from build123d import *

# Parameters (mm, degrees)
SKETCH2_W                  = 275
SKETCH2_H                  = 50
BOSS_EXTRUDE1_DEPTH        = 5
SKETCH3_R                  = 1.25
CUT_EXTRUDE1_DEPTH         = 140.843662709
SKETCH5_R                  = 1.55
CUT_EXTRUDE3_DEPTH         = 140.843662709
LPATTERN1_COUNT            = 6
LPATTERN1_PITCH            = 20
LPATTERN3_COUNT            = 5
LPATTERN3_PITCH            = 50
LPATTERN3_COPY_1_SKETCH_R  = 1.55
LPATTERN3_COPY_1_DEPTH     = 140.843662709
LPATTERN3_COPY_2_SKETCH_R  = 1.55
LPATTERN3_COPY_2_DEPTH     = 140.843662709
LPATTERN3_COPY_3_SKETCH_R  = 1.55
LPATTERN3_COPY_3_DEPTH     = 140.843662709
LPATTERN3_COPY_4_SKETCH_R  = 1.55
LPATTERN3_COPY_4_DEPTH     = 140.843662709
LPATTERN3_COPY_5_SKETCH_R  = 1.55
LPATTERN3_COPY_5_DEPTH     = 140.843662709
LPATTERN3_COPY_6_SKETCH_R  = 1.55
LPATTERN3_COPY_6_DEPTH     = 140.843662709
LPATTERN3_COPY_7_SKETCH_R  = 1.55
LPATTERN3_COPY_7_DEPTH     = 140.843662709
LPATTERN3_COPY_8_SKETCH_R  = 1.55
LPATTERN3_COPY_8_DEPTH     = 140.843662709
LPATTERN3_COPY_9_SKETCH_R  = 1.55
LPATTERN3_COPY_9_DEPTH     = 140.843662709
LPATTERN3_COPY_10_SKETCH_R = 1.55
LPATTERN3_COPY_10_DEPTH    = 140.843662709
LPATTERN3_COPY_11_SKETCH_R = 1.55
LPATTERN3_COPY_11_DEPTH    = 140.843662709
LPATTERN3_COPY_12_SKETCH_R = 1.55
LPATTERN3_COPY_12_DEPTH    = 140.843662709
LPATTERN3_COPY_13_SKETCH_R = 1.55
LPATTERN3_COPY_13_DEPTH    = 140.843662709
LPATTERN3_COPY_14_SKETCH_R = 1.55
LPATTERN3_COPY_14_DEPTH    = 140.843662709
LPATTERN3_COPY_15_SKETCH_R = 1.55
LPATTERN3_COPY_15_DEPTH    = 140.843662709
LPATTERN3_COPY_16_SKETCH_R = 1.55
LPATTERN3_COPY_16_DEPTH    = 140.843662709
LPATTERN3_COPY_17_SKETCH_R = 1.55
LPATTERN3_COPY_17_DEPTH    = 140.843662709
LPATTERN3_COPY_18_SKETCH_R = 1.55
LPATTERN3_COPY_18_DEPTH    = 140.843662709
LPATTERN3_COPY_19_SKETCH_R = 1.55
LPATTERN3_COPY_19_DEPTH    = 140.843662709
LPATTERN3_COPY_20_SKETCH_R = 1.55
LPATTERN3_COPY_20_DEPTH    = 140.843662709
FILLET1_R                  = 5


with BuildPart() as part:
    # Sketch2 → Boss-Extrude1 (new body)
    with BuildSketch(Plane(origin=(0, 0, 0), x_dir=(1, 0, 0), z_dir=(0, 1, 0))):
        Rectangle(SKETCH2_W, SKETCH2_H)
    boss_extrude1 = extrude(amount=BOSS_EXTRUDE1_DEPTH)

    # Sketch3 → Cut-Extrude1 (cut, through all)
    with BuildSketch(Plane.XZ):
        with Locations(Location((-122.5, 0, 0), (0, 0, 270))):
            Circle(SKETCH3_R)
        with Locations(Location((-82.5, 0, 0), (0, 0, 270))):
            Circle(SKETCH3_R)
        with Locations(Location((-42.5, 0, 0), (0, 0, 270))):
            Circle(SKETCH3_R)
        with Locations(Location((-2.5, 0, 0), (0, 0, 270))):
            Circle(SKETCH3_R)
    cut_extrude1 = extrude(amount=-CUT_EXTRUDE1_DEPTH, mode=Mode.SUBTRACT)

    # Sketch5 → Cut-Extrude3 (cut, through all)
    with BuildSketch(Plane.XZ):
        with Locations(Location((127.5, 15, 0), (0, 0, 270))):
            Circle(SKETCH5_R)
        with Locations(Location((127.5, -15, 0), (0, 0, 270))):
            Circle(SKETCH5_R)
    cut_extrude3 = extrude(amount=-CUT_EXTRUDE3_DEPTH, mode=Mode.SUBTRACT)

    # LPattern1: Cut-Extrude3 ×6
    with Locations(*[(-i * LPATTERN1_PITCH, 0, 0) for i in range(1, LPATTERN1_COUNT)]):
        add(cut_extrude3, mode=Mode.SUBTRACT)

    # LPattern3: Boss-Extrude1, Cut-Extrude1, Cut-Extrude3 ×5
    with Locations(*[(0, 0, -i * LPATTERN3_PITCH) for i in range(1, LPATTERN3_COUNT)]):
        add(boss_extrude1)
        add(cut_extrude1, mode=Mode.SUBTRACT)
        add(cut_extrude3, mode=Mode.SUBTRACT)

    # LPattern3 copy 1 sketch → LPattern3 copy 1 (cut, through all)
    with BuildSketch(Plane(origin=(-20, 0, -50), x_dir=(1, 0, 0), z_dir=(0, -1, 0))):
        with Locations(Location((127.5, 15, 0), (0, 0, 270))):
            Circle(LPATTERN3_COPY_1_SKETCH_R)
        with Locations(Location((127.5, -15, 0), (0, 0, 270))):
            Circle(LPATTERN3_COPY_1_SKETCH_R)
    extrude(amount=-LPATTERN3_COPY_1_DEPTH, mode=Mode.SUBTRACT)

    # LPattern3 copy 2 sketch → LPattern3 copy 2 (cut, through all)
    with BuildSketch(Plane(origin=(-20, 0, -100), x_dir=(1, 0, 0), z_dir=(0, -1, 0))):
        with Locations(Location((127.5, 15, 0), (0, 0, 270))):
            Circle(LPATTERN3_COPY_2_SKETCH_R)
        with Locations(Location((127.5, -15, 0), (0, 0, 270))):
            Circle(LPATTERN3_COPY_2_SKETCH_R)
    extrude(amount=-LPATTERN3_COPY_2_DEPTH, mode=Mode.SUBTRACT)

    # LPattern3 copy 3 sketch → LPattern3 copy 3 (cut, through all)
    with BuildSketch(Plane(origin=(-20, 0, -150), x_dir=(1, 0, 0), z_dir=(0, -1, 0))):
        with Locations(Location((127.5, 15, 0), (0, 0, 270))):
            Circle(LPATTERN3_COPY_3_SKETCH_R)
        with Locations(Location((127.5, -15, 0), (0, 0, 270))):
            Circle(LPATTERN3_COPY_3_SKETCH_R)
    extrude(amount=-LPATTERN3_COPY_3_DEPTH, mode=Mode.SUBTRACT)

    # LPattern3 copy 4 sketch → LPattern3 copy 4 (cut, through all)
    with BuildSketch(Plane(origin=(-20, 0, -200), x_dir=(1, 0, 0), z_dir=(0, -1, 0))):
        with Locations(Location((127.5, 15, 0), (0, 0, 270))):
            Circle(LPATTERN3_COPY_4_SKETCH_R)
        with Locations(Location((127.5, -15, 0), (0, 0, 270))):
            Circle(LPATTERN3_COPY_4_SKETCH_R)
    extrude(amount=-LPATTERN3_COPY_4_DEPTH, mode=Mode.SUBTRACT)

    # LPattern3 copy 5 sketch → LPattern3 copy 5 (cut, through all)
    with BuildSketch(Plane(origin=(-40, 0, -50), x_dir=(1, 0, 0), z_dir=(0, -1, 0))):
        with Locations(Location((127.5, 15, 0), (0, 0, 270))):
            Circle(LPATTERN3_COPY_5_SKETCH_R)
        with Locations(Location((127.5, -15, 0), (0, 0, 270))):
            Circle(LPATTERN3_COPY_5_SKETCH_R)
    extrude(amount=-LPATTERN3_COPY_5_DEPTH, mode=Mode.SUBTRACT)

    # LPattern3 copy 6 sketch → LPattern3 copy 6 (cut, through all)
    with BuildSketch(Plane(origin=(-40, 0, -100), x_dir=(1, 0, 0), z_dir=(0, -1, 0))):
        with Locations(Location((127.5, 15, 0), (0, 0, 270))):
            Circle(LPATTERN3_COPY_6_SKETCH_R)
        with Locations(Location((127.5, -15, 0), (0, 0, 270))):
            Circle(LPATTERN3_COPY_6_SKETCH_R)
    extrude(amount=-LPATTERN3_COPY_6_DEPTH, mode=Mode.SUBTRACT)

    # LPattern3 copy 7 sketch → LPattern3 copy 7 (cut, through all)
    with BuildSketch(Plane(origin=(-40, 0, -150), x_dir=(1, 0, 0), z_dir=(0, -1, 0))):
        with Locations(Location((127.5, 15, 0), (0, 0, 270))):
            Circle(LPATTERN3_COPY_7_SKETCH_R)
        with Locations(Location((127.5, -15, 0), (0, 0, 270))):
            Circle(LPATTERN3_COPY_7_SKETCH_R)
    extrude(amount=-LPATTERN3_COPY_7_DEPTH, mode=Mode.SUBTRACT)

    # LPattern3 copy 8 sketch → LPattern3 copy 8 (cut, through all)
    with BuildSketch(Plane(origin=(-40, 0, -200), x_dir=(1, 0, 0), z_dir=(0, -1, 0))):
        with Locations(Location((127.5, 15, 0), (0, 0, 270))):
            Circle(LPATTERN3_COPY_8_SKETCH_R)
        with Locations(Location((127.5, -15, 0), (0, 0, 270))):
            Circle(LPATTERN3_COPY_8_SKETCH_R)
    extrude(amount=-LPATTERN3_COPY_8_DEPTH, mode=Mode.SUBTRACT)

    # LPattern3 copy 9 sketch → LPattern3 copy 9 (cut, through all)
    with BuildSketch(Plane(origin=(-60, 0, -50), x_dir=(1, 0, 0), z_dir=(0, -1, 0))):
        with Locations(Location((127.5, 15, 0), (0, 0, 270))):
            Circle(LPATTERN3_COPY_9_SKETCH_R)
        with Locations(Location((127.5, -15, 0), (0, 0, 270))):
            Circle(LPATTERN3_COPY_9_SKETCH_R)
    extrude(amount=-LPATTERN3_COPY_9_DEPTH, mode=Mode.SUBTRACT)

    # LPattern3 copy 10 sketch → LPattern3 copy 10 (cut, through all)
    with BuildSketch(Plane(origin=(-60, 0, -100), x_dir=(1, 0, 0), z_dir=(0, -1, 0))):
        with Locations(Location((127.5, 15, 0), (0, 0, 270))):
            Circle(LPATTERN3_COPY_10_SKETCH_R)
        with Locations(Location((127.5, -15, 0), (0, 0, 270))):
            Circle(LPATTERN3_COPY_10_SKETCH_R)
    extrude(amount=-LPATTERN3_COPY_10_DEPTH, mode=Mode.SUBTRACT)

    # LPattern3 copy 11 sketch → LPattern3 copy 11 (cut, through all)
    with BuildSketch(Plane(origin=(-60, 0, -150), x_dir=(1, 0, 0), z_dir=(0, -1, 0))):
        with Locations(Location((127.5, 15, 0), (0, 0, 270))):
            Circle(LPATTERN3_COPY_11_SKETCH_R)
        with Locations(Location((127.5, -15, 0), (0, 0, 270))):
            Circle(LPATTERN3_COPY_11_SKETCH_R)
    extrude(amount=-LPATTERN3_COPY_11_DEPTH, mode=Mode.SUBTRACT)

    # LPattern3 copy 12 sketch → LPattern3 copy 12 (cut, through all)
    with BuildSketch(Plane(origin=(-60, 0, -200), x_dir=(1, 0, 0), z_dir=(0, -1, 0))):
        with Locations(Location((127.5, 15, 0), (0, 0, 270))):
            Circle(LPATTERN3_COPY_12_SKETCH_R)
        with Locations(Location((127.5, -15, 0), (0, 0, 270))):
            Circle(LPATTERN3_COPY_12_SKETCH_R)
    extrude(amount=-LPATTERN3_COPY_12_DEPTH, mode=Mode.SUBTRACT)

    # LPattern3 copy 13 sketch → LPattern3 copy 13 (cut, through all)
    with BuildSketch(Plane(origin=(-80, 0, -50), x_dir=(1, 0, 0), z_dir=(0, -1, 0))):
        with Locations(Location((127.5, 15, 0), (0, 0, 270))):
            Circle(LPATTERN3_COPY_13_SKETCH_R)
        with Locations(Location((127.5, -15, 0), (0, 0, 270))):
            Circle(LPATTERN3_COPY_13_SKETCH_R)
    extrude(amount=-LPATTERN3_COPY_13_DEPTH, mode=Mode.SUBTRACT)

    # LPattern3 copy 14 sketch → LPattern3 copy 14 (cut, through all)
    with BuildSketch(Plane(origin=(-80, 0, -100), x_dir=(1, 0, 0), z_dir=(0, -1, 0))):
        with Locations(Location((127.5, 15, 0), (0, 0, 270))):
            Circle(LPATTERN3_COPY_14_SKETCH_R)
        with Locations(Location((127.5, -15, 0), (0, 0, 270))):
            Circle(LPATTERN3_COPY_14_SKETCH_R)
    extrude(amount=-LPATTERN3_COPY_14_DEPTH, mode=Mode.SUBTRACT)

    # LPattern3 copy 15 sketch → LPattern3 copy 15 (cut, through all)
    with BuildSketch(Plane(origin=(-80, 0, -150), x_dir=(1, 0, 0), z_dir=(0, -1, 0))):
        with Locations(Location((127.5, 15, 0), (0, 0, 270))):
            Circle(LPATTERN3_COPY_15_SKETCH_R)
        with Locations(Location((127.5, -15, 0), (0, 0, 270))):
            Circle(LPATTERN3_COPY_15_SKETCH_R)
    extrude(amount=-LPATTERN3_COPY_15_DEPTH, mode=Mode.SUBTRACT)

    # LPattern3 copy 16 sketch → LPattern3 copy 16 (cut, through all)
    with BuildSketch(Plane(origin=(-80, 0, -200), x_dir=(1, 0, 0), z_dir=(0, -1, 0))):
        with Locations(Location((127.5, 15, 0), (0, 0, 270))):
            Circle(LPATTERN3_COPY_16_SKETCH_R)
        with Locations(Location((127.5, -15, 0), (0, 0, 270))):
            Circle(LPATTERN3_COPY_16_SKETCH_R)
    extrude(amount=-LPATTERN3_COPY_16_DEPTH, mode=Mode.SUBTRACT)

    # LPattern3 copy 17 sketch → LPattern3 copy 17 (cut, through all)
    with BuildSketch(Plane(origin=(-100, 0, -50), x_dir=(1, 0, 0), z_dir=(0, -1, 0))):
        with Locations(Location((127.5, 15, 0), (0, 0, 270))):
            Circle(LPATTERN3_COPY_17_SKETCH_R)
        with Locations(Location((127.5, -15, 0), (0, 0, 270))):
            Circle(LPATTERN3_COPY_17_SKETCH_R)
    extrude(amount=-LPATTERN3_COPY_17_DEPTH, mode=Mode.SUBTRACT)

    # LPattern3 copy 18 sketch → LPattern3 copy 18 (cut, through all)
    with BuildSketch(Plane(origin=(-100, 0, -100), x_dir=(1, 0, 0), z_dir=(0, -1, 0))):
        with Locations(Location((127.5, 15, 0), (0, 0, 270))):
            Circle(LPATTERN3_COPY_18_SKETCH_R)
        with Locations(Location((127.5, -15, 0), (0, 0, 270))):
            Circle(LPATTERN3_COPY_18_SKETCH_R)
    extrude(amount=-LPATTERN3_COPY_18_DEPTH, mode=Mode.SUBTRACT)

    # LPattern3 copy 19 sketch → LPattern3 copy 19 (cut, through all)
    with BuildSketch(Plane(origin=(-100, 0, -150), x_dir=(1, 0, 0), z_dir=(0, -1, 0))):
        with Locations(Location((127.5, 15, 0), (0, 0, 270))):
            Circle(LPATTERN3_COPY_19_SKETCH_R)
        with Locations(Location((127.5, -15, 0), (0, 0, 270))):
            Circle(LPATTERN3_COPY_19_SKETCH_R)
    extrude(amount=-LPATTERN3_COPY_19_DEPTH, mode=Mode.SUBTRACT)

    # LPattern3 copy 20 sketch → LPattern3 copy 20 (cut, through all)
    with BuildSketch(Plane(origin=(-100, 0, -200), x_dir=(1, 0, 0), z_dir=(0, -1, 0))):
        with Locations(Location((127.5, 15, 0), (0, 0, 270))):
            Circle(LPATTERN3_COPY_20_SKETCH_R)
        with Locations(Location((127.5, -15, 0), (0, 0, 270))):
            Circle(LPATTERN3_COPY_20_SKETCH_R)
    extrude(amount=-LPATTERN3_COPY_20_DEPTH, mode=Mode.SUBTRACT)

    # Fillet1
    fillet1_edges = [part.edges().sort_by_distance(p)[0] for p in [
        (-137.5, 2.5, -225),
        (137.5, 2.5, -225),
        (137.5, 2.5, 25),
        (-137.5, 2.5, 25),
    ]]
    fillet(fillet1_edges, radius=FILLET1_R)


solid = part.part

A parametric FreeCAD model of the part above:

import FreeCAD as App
import Part
import Sketcher
from FreeCAD import Vector
Q = App.Units.Quantity


def edges_at(feature, points):
    """Names of the edges that pass closest to the given points."""
    edges = feature.Shape.Edges
    near = lambda p: min(range(len(edges)), key=lambda i: edges[i].distToShape(Part.Vertex(*p))[0])
    return sorted({f"Edge{near(p) + 1}" for p in points})

doc = App.newDocument("Part")
body = doc.addObject("PartDesign::Body", "Body")

# Sketch on XZ plane
sketch1 = doc.addObject("Sketcher::SketchObject", "Sketch")
body.addObject(sketch1)
sketch1.AttachmentSupport = (doc.XZ_Plane, [""])
sketch1.MapMode = "FlatFace"
sketch1.addGeometry([
    Part.LineSegment(Vector(-137.5, -25, 0), Vector(-137.5, 25, 0)),
    Part.LineSegment(Vector(-137.5, 25, 0), Vector(137.5, 25, 0)),
    Part.LineSegment(Vector(137.5, 25, 0), Vector(137.5, -25, 0)),
    Part.LineSegment(Vector(137.5, -25, 0), Vector(-137.5, -25, 0)),
], False)
sketch1.addConstraint([
    Sketcher.Constraint("Coincident", 0, 2, 1, 1),
    Sketcher.Constraint("Coincident", 1, 2, 2, 1),
    Sketcher.Constraint("Coincident", 2, 2, 3, 1),
    Sketcher.Constraint("Coincident", 3, 2, 0, 1),
    Sketcher.Constraint("Vertical", 0),
    Sketcher.Constraint("Horizontal", 1),
    Sketcher.Constraint("Vertical", 2),
    Sketcher.Constraint("Horizontal", 3),
    Sketcher.Constraint("Symmetric", 0, 2, 2, 2, -1, 1),
    Sketcher.Constraint("DistanceX", 1, 1, 1, 2, Q("275 mm")),
    Sketcher.Constraint("DistanceY", 0, 1, 0, 2, Q("50 mm")),
])
pad1 = doc.addObject("PartDesign::Pad", "Pad")
body.addObject(pad1)
pad1.Profile = sketch1
pad1.Length = 5
pad1.Reversed = True

# Sketch on XZ plane
sketch2 = doc.addObject("Sketcher::SketchObject", "Sketch001")
body.addObject(sketch2)
sketch2.AttachmentSupport = (doc.XZ_Plane, [""])
sketch2.MapMode = "FlatFace"
sketch2.addGeometry([
    Part.Circle(Vector(-122.5, 0, 0), Vector(0, 0, 1), 1.25),
    Part.Circle(Vector(-82.5, 0, 0), Vector(0, 0, 1), 1.25),
    Part.Circle(Vector(-42.5, 0, 0), Vector(0, 0, 1), 1.25),
    Part.Circle(Vector(-2.5, 0, 0), Vector(0, 0, 1), 1.25),
], False)
sketch2.addConstraint([
    Sketcher.Constraint("Equal", 0, 1),
    Sketcher.Constraint("Equal", 1, 2),
    Sketcher.Constraint("Equal", 2, 3),
    Sketcher.Constraint("PointOnObject", 0, 3, -1),
    Sketcher.Constraint("PointOnObject", 1, 3, -1),
    Sketcher.Constraint("PointOnObject", 2, 3, -1),
    Sketcher.Constraint("PointOnObject", 3, 3, -1),
    Sketcher.Constraint("Diameter", 0, Q("2.5 mm")),
    Sketcher.Constraint("DistanceX", 0, 3, 1, 3, Q("40 mm")),
    Sketcher.Constraint("DistanceX", 1, 3, 2, 3, Q("40 mm")),
    Sketcher.Constraint("DistanceX", 2, 3, 3, 3, Q("40 mm")),
    Sketcher.Constraint("DistanceX", 0, 3, -1, 1, Q("122.5 mm")),
])
pocket1 = doc.addObject("PartDesign::Pocket", "Pocket")
body.addObject(pocket1)
pocket1.Profile = sketch2
pocket1.Type = "ThroughAll"

# Sketch on XZ plane
sketch3 = doc.addObject("Sketcher::SketchObject", "Sketch002")
body.addObject(sketch3)
sketch3.AttachmentSupport = (doc.XZ_Plane, [""])
sketch3.MapMode = "FlatFace"
sketch3.addGeometry([
    Part.Circle(Vector(127.5, 15, 0), Vector(0, 0, 1), 1.55),
    Part.Circle(Vector(127.5, -15, 0), Vector(0, 0, 1), 1.55),
], False)
sketch3.addConstraint([
    Sketcher.Constraint("Equal", 0, 1),
    Sketcher.Constraint("Symmetric", 0, 3, 1, 3, -1),
    Sketcher.Constraint("Diameter", 0, Q("3.1 mm")),
    Sketcher.Constraint("DistanceY", -1, 1, 0, 3, Q("15 mm")),
    Sketcher.Constraint("DistanceX", -1, 1, 0, 3, Q("127.5 mm")),
])
pocket2 = doc.addObject("PartDesign::Pocket", "Pocket001")
body.addObject(pocket2)
pocket2.Profile = sketch3
pocket2.Type = "ThroughAll"
doc.recompute()

linearpattern = doc.addObject("PartDesign::LinearPattern", "LinearPattern")
body.addObject(linearpattern)
linearpattern.Originals = [pocket2]
linearpattern.Direction = (doc.X_Axis, [""])
linearpattern.Mode = "offset"
linearpattern.Offset = 20
linearpattern.Occurrences = 6
linearpattern.Reversed = True
body.Tip = linearpattern
doc.recompute()

linearpattern2 = doc.addObject("PartDesign::LinearPattern", "LinearPattern001")
body.addObject(linearpattern2)
linearpattern2.Originals = [pad1, pocket1, pocket2]
linearpattern2.Direction = (doc.Z_Axis, [""])
linearpattern2.Mode = "offset"
linearpattern2.Offset = 50
linearpattern2.Occurrences = 5
linearpattern2.Reversed = True
body.Tip = linearpattern2

# Sketch on XZ plane
sketch4 = doc.addObject("Sketcher::SketchObject", "Sketch003")
body.addObject(sketch4)
sketch4.AttachmentSupport = (doc.XZ_Plane, [""])
sketch4.MapMode = "FlatFace"
sketch4.addGeometry([
    Part.Circle(Vector(107.5, -35, 0), Vector(0, 0, 1), 1.55),
    Part.Circle(Vector(107.5, -65, 0), Vector(0, 0, 1), 1.55),
], False)
sketch4.addConstraint([
    Sketcher.Constraint("Equal", 0, 1),
    Sketcher.Constraint("Vertical", 0, 3, 1, 3),
    Sketcher.Constraint("Diameter", 0, Q("3.1 mm")),
    Sketcher.Constraint("DistanceY", 0, 3, -1, 1, Q("35 mm")),
    Sketcher.Constraint("DistanceY", 1, 3, -1, 1, Q("65 mm")),
    Sketcher.Constraint("DistanceX", -1, 1, 0, 3, Q("107.5 mm")),
])
pocket3 = doc.addObject("PartDesign::Pocket", "Pocket002")
body.addObject(pocket3)
pocket3.Profile = sketch4
pocket3.Type = "ThroughAll"

# Sketch on XZ plane
sketch5 = doc.addObject("Sketcher::SketchObject", "Sketch004")
body.addObject(sketch5)
sketch5.AttachmentSupport = (doc.XZ_Plane, [""])
sketch5.MapMode = "FlatFace"
sketch5.addGeometry([
    Part.Circle(Vector(107.5, -85, 0), Vector(0, 0, 1), 1.55),
    Part.Circle(Vector(107.5, -115, 0), Vector(0, 0, 1), 1.55),
], False)
sketch5.addConstraint([
    Sketcher.Constraint("Equal", 0, 1),
    Sketcher.Constraint("Vertical", 0, 3, 1, 3),
    Sketcher.Constraint("Diameter", 0, Q("3.1 mm")),
    Sketcher.Constraint("DistanceY", 0, 3, -1, 1, Q("85 mm")),
    Sketcher.Constraint("DistanceY", 1, 3, -1, 1, Q("115 mm")),
    Sketcher.Constraint("DistanceX", -1, 1, 0, 3, Q("107.5 mm")),
])
pocket4 = doc.addObject("PartDesign::Pocket", "Pocket003")
body.addObject(pocket4)
pocket4.Profile = sketch5
pocket4.Type = "ThroughAll"

# Sketch on XZ plane
sketch6 = doc.addObject("Sketcher::SketchObject", "Sketch005")
body.addObject(sketch6)
sketch6.AttachmentSupport = (doc.XZ_Plane, [""])
sketch6.MapMode = "FlatFace"
sketch6.addGeometry([
    Part.Circle(Vector(107.5, -135, 0), Vector(0, 0, 1), 1.55),
    Part.Circle(Vector(107.5, -165, 0), Vector(0, 0, 1), 1.55),
], False)
sketch6.addConstraint([
    Sketcher.Constraint("Equal", 0, 1),
    Sketcher.Constraint("Vertical", 0, 3, 1, 3),
    Sketcher.Constraint("Diameter", 0, Q("3.1 mm")),
    Sketcher.Constraint("DistanceY", 0, 3, -1, 1, Q("135 mm")),
    Sketcher.Constraint("DistanceY", 1, 3, -1, 1, Q("165 mm")),
    Sketcher.Constraint("DistanceX", -1, 1, 0, 3, Q("107.5 mm")),
])
pocket5 = doc.addObject("PartDesign::Pocket", "Pocket004")
body.addObject(pocket5)
pocket5.Profile = sketch6
pocket5.Type = "ThroughAll"

# Sketch on XZ plane
sketch7 = doc.addObject("Sketcher::SketchObject", "Sketch006")
body.addObject(sketch7)
sketch7.AttachmentSupport = (doc.XZ_Plane, [""])
sketch7.MapMode = "FlatFace"
sketch7.addGeometry([
    Part.Circle(Vector(107.5, -185, 0), Vector(0, 0, 1), 1.55),
    Part.Circle(Vector(107.5, -215, 0), Vector(0, 0, 1), 1.55),
], False)
sketch7.addConstraint([
    Sketcher.Constraint("Equal", 0, 1),
    Sketcher.Constraint("Vertical", 0, 3, 1, 3),
    Sketcher.Constraint("Diameter", 0, Q("3.1 mm")),
    Sketcher.Constraint("DistanceY", 0, 3, -1, 1, Q("185 mm")),
    Sketcher.Constraint("DistanceY", 1, 3, -1, 1, Q("215 mm")),
    Sketcher.Constraint("DistanceX", -1, 1, 0, 3, Q("107.5 mm")),
])
pocket6 = doc.addObject("PartDesign::Pocket", "Pocket005")
body.addObject(pocket6)
pocket6.Profile = sketch7
pocket6.Type = "ThroughAll"

# Sketch on XZ plane
sketch8 = doc.addObject("Sketcher::SketchObject", "Sketch007")
body.addObject(sketch8)
sketch8.AttachmentSupport = (doc.XZ_Plane, [""])
sketch8.MapMode = "FlatFace"
sketch8.addGeometry([
    Part.Circle(Vector(87.5, -35, 0), Vector(0, 0, 1), 1.55),
    Part.Circle(Vector(87.5, -65, 0), Vector(0, 0, 1), 1.55),
], False)
sketch8.addConstraint([
    Sketcher.Constraint("Equal", 0, 1),
    Sketcher.Constraint("Vertical", 0, 3, 1, 3),
    Sketcher.Constraint("Diameter", 0, Q("3.1 mm")),
    Sketcher.Constraint("DistanceY", 0, 3, -1, 1, Q("35 mm")),
    Sketcher.Constraint("DistanceY", 1, 3, -1, 1, Q("65 mm")),
    Sketcher.Constraint("DistanceX", -1, 1, 0, 3, Q("87.5 mm")),
])
pocket7 = doc.addObject("PartDesign::Pocket", "Pocket006")
body.addObject(pocket7)
pocket7.Profile = sketch8
pocket7.Type = "ThroughAll"

# Sketch on XZ plane
sketch9 = doc.addObject("Sketcher::SketchObject", "Sketch008")
body.addObject(sketch9)
sketch9.AttachmentSupport = (doc.XZ_Plane, [""])
sketch9.MapMode = "FlatFace"
sketch9.addGeometry([
    Part.Circle(Vector(87.5, -85, 0), Vector(0, 0, 1), 1.55),
    Part.Circle(Vector(87.5, -115, 0), Vector(0, 0, 1), 1.55),
], False)
sketch9.addConstraint([
    Sketcher.Constraint("Equal", 0, 1),
    Sketcher.Constraint("Vertical", 0, 3, 1, 3),
    Sketcher.Constraint("Diameter", 0, Q("3.1 mm")),
    Sketcher.Constraint("DistanceY", 0, 3, -1, 1, Q("85 mm")),
    Sketcher.Constraint("DistanceY", 1, 3, -1, 1, Q("115 mm")),
    Sketcher.Constraint("DistanceX", -1, 1, 0, 3, Q("87.5 mm")),
])
pocket8 = doc.addObject("PartDesign::Pocket", "Pocket007")
body.addObject(pocket8)
pocket8.Profile = sketch9
pocket8.Type = "ThroughAll"

# Sketch on XZ plane
sketch10 = doc.addObject("Sketcher::SketchObject", "Sketch009")
body.addObject(sketch10)
sketch10.AttachmentSupport = (doc.XZ_Plane, [""])
sketch10.MapMode = "FlatFace"
sketch10.addGeometry([
    Part.Circle(Vector(87.5, -135, 0), Vector(0, 0, 1), 1.55),
    Part.Circle(Vector(87.5, -165, 0), Vector(0, 0, 1), 1.55),
], False)
sketch10.addConstraint([
    Sketcher.Constraint("Equal", 0, 1),
    Sketcher.Constraint("Vertical", 0, 3, 1, 3),
    Sketcher.Constraint("Diameter", 0, Q("3.1 mm")),
    Sketcher.Constraint("DistanceY", 0, 3, -1, 1, Q("135 mm")),
    Sketcher.Constraint("DistanceY", 1, 3, -1, 1, Q("165 mm")),
    Sketcher.Constraint("DistanceX", -1, 1, 0, 3, Q("87.5 mm")),
])
pocket9 = doc.addObject("PartDesign::Pocket", "Pocket008")
body.addObject(pocket9)
pocket9.Profile = sketch10
pocket9.Type = "ThroughAll"

# Sketch on XZ plane
sketch11 = doc.addObject("Sketcher::SketchObject", "Sketch010")
body.addObject(sketch11)
sketch11.AttachmentSupport = (doc.XZ_Plane, [""])
sketch11.MapMode = "FlatFace"
sketch11.addGeometry([
    Part.Circle(Vector(87.5, -185, 0), Vector(0, 0, 1), 1.55),
    Part.Circle(Vector(87.5, -215, 0), Vector(0, 0, 1), 1.55),
], False)
sketch11.addConstraint([
    Sketcher.Constraint("Equal", 0, 1),
    Sketcher.Constraint("Vertical", 0, 3, 1, 3),
    Sketcher.Constraint("Diameter", 0, Q("3.1 mm")),
    Sketcher.Constraint("DistanceY", 0, 3, -1, 1, Q("185 mm")),
    Sketcher.Constraint("DistanceY", 1, 3, -1, 1, Q("215 mm")),
    Sketcher.Constraint("DistanceX", -1, 1, 0, 3, Q("87.5 mm")),
])
pocket10 = doc.addObject("PartDesign::Pocket", "Pocket009")
body.addObject(pocket10)
pocket10.Profile = sketch11
pocket10.Type = "ThroughAll"

# Sketch on XZ plane
sketch12 = doc.addObject("Sketcher::SketchObject", "Sketch011")
body.addObject(sketch12)
sketch12.AttachmentSupport = (doc.XZ_Plane, [""])
sketch12.MapMode = "FlatFace"
sketch12.addGeometry([
    Part.Circle(Vector(67.5, -35, 0), Vector(0, 0, 1), 1.55),
    Part.Circle(Vector(67.5, -65, 0), Vector(0, 0, 1), 1.55),
], False)
sketch12.addConstraint([
    Sketcher.Constraint("Equal", 0, 1),
    Sketcher.Constraint("Vertical", 0, 3, 1, 3),
    Sketcher.Constraint("Diameter", 0, Q("3.1 mm")),
    Sketcher.Constraint("DistanceY", 0, 3, -1, 1, Q("35 mm")),
    Sketcher.Constraint("DistanceY", 1, 3, -1, 1, Q("65 mm")),
    Sketcher.Constraint("DistanceX", -1, 1, 0, 3, Q("67.5 mm")),
])
pocket11 = doc.addObject("PartDesign::Pocket", "Pocket010")
body.addObject(pocket11)
pocket11.Profile = sketch12
pocket11.Type = "ThroughAll"

# Sketch on XZ plane
sketch13 = doc.addObject("Sketcher::SketchObject", "Sketch012")
body.addObject(sketch13)
sketch13.AttachmentSupport = (doc.XZ_Plane, [""])
sketch13.MapMode = "FlatFace"
sketch13.addGeometry([
    Part.Circle(Vector(67.5, -85, 0), Vector(0, 0, 1), 1.55),
    Part.Circle(Vector(67.5, -115, 0), Vector(0, 0, 1), 1.55),
], False)
sketch13.addConstraint([
    Sketcher.Constraint("Equal", 0, 1),
    Sketcher.Constraint("Vertical", 0, 3, 1, 3),
    Sketcher.Constraint("Diameter", 0, Q("3.1 mm")),
    Sketcher.Constraint("DistanceY", 0, 3, -1, 1, Q("85 mm")),
    Sketcher.Constraint("DistanceY", 1, 3, -1, 1, Q("115 mm")),
    Sketcher.Constraint("DistanceX", -1, 1, 0, 3, Q("67.5 mm")),
])
pocket12 = doc.addObject("PartDesign::Pocket", "Pocket011")
body.addObject(pocket12)
pocket12.Profile = sketch13
pocket12.Type = "ThroughAll"

# Sketch on XZ plane
sketch14 = doc.addObject("Sketcher::SketchObject", "Sketch013")
body.addObject(sketch14)
sketch14.AttachmentSupport = (doc.XZ_Plane, [""])
sketch14.MapMode = "FlatFace"
sketch14.addGeometry([
    Part.Circle(Vector(67.5, -135, 0), Vector(0, 0, 1), 1.55),
    Part.Circle(Vector(67.5, -165, 0), Vector(0, 0, 1), 1.55),
], False)
sketch14.addConstraint([
    Sketcher.Constraint("Equal", 0, 1),
    Sketcher.Constraint("Vertical", 0, 3, 1, 3),
    Sketcher.Constraint("Diameter", 0, Q("3.1 mm")),
    Sketcher.Constraint("DistanceY", 0, 3, -1, 1, Q("135 mm")),
    Sketcher.Constraint("DistanceY", 1, 3, -1, 1, Q("165 mm")),
    Sketcher.Constraint("DistanceX", -1, 1, 0, 3, Q("67.5 mm")),
])
pocket13 = doc.addObject("PartDesign::Pocket", "Pocket012")
body.addObject(pocket13)
pocket13.Profile = sketch14
pocket13.Type = "ThroughAll"

# Sketch on XZ plane
sketch15 = doc.addObject("Sketcher::SketchObject", "Sketch014")
body.addObject(sketch15)
sketch15.AttachmentSupport = (doc.XZ_Plane, [""])
sketch15.MapMode = "FlatFace"
sketch15.addGeometry([
    Part.Circle(Vector(67.5, -185, 0), Vector(0, 0, 1), 1.55),
    Part.Circle(Vector(67.5, -215, 0), Vector(0, 0, 1), 1.55),
], False)
sketch15.addConstraint([
    Sketcher.Constraint("Equal", 0, 1),
    Sketcher.Constraint("Vertical", 0, 3, 1, 3),
    Sketcher.Constraint("Diameter", 0, Q("3.1 mm")),
    Sketcher.Constraint("DistanceY", 0, 3, -1, 1, Q("185 mm")),
    Sketcher.Constraint("DistanceY", 1, 3, -1, 1, Q("215 mm")),
    Sketcher.Constraint("DistanceX", -1, 1, 0, 3, Q("67.5 mm")),
])
pocket14 = doc.addObject("PartDesign::Pocket", "Pocket013")
body.addObject(pocket14)
pocket14.Profile = sketch15
pocket14.Type = "ThroughAll"

# Sketch on XZ plane
sketch16 = doc.addObject("Sketcher::SketchObject", "Sketch015")
body.addObject(sketch16)
sketch16.AttachmentSupport = (doc.XZ_Plane, [""])
sketch16.MapMode = "FlatFace"
sketch16.addGeometry([
    Part.Circle(Vector(47.5, -35, 0), Vector(0, 0, 1), 1.55),
    Part.Circle(Vector(47.5, -65, 0), Vector(0, 0, 1), 1.55),
], False)
sketch16.addConstraint([
    Sketcher.Constraint("Equal", 0, 1),
    Sketcher.Constraint("Vertical", 0, 3, 1, 3),
    Sketcher.Constraint("Diameter", 0, Q("3.1 mm")),
    Sketcher.Constraint("DistanceY", 0, 3, -1, 1, Q("35 mm")),
    Sketcher.Constraint("DistanceY", 1, 3, -1, 1, Q("65 mm")),
    Sketcher.Constraint("DistanceX", -1, 1, 0, 3, Q("47.5 mm")),
])
pocket15 = doc.addObject("PartDesign::Pocket", "Pocket014")
body.addObject(pocket15)
pocket15.Profile = sketch16
pocket15.Type = "ThroughAll"

# Sketch on XZ plane
sketch17 = doc.addObject("Sketcher::SketchObject", "Sketch016")
body.addObject(sketch17)
sketch17.AttachmentSupport = (doc.XZ_Plane, [""])
sketch17.MapMode = "FlatFace"
sketch17.addGeometry([
    Part.Circle(Vector(47.5, -85, 0), Vector(0, 0, 1), 1.55),
    Part.Circle(Vector(47.5, -115, 0), Vector(0, 0, 1), 1.55),
], False)
sketch17.addConstraint([
    Sketcher.Constraint("Equal", 0, 1),
    Sketcher.Constraint("Vertical", 0, 3, 1, 3),
    Sketcher.Constraint("Diameter", 0, Q("3.1 mm")),
    Sketcher.Constraint("DistanceY", 0, 3, -1, 1, Q("85 mm")),
    Sketcher.Constraint("DistanceY", 1, 3, -1, 1, Q("115 mm")),
    Sketcher.Constraint("DistanceX", -1, 1, 0, 3, Q("47.5 mm")),
])
pocket16 = doc.addObject("PartDesign::Pocket", "Pocket015")
body.addObject(pocket16)
pocket16.Profile = sketch17
pocket16.Type = "ThroughAll"

# Sketch on XZ plane
sketch18 = doc.addObject("Sketcher::SketchObject", "Sketch017")
body.addObject(sketch18)
sketch18.AttachmentSupport = (doc.XZ_Plane, [""])
sketch18.MapMode = "FlatFace"
sketch18.addGeometry([
    Part.Circle(Vector(47.5, -135, 0), Vector(0, 0, 1), 1.55),
    Part.Circle(Vector(47.5, -165, 0), Vector(0, 0, 1), 1.55),
], False)
sketch18.addConstraint([
    Sketcher.Constraint("Equal", 0, 1),
    Sketcher.Constraint("Vertical", 0, 3, 1, 3),
    Sketcher.Constraint("Diameter", 0, Q("3.1 mm")),
    Sketcher.Constraint("DistanceY", 0, 3, -1, 1, Q("135 mm")),
    Sketcher.Constraint("DistanceY", 1, 3, -1, 1, Q("165 mm")),
    Sketcher.Constraint("DistanceX", -1, 1, 0, 3, Q("47.5 mm")),
])
pocket17 = doc.addObject("PartDesign::Pocket", "Pocket016")
body.addObject(pocket17)
pocket17.Profile = sketch18
pocket17.Type = "ThroughAll"

# Sketch on XZ plane
sketch19 = doc.addObject("Sketcher::SketchObject", "Sketch018")
body.addObject(sketch19)
sketch19.AttachmentSupport = (doc.XZ_Plane, [""])
sketch19.MapMode = "FlatFace"
sketch19.addGeometry([
    Part.Circle(Vector(47.5, -185, 0), Vector(0, 0, 1), 1.55),
    Part.Circle(Vector(47.5, -215, 0), Vector(0, 0, 1), 1.55),
], False)
sketch19.addConstraint([
    Sketcher.Constraint("Equal", 0, 1),
    Sketcher.Constraint("Vertical", 0, 3, 1, 3),
    Sketcher.Constraint("Diameter", 0, Q("3.1 mm")),
    Sketcher.Constraint("DistanceY", 0, 3, -1, 1, Q("185 mm")),
    Sketcher.Constraint("DistanceY", 1, 3, -1, 1, Q("215 mm")),
    Sketcher.Constraint("DistanceX", -1, 1, 0, 3, Q("47.5 mm")),
])
pocket18 = doc.addObject("PartDesign::Pocket", "Pocket017")
body.addObject(pocket18)
pocket18.Profile = sketch19
pocket18.Type = "ThroughAll"

# Sketch on XZ plane
sketch20 = doc.addObject("Sketcher::SketchObject", "Sketch019")
body.addObject(sketch20)
sketch20.AttachmentSupport = (doc.XZ_Plane, [""])
sketch20.MapMode = "FlatFace"
sketch20.addGeometry([
    Part.Circle(Vector(27.5, -35, 0), Vector(0, 0, 1), 1.55),
    Part.Circle(Vector(27.5, -65, 0), Vector(0, 0, 1), 1.55),
], False)
sketch20.addConstraint([
    Sketcher.Constraint("Equal", 0, 1),
    Sketcher.Constraint("Vertical", 0, 3, 1, 3),
    Sketcher.Constraint("Diameter", 0, Q("3.1 mm")),
    Sketcher.Constraint("DistanceY", 0, 3, -1, 1, Q("35 mm")),
    Sketcher.Constraint("DistanceY", 1, 3, -1, 1, Q("65 mm")),
    Sketcher.Constraint("DistanceX", -1, 1, 0, 3, Q("27.5 mm")),
])
pocket19 = doc.addObject("PartDesign::Pocket", "Pocket018")
body.addObject(pocket19)
pocket19.Profile = sketch20
pocket19.Type = "ThroughAll"

# Sketch on XZ plane
sketch21 = doc.addObject("Sketcher::SketchObject", "Sketch020")
body.addObject(sketch21)
sketch21.AttachmentSupport = (doc.XZ_Plane, [""])
sketch21.MapMode = "FlatFace"
sketch21.addGeometry([
    Part.Circle(Vector(27.5, -85, 0), Vector(0, 0, 1), 1.55),
    Part.Circle(Vector(27.5, -115, 0), Vector(0, 0, 1), 1.55),
], False)
sketch21.addConstraint([
    Sketcher.Constraint("Equal", 0, 1),
    Sketcher.Constraint("Vertical", 0, 3, 1, 3),
    Sketcher.Constraint("Diameter", 0, Q("3.1 mm")),
    Sketcher.Constraint("DistanceY", 0, 3, -1, 1, Q("85 mm")),
    Sketcher.Constraint("DistanceY", 1, 3, -1, 1, Q("115 mm")),
    Sketcher.Constraint("DistanceX", -1, 1, 0, 3, Q("27.5 mm")),
])
pocket20 = doc.addObject("PartDesign::Pocket", "Pocket019")
body.addObject(pocket20)
pocket20.Profile = sketch21
pocket20.Type = "ThroughAll"

# Sketch on XZ plane
sketch22 = doc.addObject("Sketcher::SketchObject", "Sketch021")
body.addObject(sketch22)
sketch22.AttachmentSupport = (doc.XZ_Plane, [""])
sketch22.MapMode = "FlatFace"
sketch22.addGeometry([
    Part.Circle(Vector(27.5, -135, 0), Vector(0, 0, 1), 1.55),
    Part.Circle(Vector(27.5, -165, 0), Vector(0, 0, 1), 1.55),
], False)
sketch22.addConstraint([
    Sketcher.Constraint("Equal", 0, 1),
    Sketcher.Constraint("Vertical", 0, 3, 1, 3),
    Sketcher.Constraint("Diameter", 0, Q("3.1 mm")),
    Sketcher.Constraint("DistanceY", 0, 3, -1, 1, Q("135 mm")),
    Sketcher.Constraint("DistanceY", 1, 3, -1, 1, Q("165 mm")),
    Sketcher.Constraint("DistanceX", -1, 1, 0, 3, Q("27.5 mm")),
])
pocket21 = doc.addObject("PartDesign::Pocket", "Pocket020")
body.addObject(pocket21)
pocket21.Profile = sketch22
pocket21.Type = "ThroughAll"

# Sketch on XZ plane
sketch23 = doc.addObject("Sketcher::SketchObject", "Sketch022")
body.addObject(sketch23)
sketch23.AttachmentSupport = (doc.XZ_Plane, [""])
sketch23.MapMode = "FlatFace"
sketch23.addGeometry([
    Part.Circle(Vector(27.5, -185, 0), Vector(0, 0, 1), 1.55),
    Part.Circle(Vector(27.5, -215, 0), Vector(0, 0, 1), 1.55),
], False)
sketch23.addConstraint([
    Sketcher.Constraint("Equal", 0, 1),
    Sketcher.Constraint("Vertical", 0, 3, 1, 3),
    Sketcher.Constraint("Diameter", 0, Q("3.1 mm")),
    Sketcher.Constraint("DistanceY", 0, 3, -1, 1, Q("185 mm")),
    Sketcher.Constraint("DistanceY", 1, 3, -1, 1, Q("215 mm")),
    Sketcher.Constraint("DistanceX", -1, 1, 0, 3, Q("27.5 mm")),
])
pocket22 = doc.addObject("PartDesign::Pocket", "Pocket021")
body.addObject(pocket22)
pocket22.Profile = sketch23
pocket22.Type = "ThroughAll"
doc.recompute()

fillet = doc.addObject("PartDesign::Fillet", "Fillet")
body.addObject(fillet)
fillet.Base = (pocket22, edges_at(pocket22, [
    (-137.5, 2.5, -225),
    (137.5, 2.5, -225),
    (137.5, 2.5, 25),
    (-137.5, 2.5, 25),
]))
fillet.Radius = 5

doc.recompute()
